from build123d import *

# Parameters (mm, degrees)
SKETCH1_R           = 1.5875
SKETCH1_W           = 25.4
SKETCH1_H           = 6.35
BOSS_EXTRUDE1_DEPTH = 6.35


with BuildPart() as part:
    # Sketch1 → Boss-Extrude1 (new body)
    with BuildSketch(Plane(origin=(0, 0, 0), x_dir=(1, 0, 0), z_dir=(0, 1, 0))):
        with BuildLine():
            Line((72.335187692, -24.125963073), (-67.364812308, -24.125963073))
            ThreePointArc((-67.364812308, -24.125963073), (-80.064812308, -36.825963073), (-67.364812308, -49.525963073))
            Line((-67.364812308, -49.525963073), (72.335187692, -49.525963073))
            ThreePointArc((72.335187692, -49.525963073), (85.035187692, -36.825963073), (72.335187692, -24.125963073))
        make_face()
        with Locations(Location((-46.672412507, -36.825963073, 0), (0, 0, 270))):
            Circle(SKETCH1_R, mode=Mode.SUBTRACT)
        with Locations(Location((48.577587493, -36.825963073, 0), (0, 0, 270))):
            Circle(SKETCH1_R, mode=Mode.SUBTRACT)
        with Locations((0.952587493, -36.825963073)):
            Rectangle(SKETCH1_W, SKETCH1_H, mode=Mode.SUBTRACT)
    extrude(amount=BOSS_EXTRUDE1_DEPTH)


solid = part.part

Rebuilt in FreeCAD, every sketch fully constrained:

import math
import FreeCAD as App
import Part
import Sketcher
Q = App.Units.Quantity


def add_polygon(sketch, points):
    """Adds a closed chain of lines whose ends are joined by coincident constraints."""
    first, n = sketch.GeometryCount, len(points)
    for a, b in zip(points, points[1:] + points[:1]):
        sketch.addGeometry(Part.LineSegment(App.Vector(*a, 0), App.Vector(*b, 0)), False)
    for i in range(n):
        sketch.addConstraint(Sketcher.Constraint("Coincident", first + i, 2, first + (i + 1) % n, 1))

doc = App.newDocument("Part")
params = doc.addObject("Spreadsheet::Sheet", "Params")
for row, (alias, value) in enumerate([
    ("sketch1_radius", "0.5 in"),
    ("sketch1_width", "1 in"),
    ("sketch1_diameter", "0.125 in"),
    ("sketch1_width2", "5.5 in"),
    ("sketch1_height", "0.25 in"),
    ("pad1_length", "0.25 in"),
], start=1):
    params.set(f"A{row}", alias)
    params.set(f"B{row}", "=" + value)
    params.setAlias(f"B{row}", alias)

body = doc.addObject("PartDesign::Body", "Body")

# Sketch on XZ plane
sketch1 = doc.addObject("Sketcher::SketchObject", "Sketch")
body.addObject(sketch1)
sketch1.AttachmentSupport = (doc.XZ_Plane, [""])
sketch1.MapMode = "FlatFace"
sketch1.addGeometry(Part.LineSegment(App.Vector(72.3, 24.1, 0), App.Vector(-67.4, 24.1, 0)), False)  # 0
sketch1.addGeometry(Part.ArcOfCircle(Part.Circle(App.Vector(-67.4, 36.8, 0), App.Vector(0, 0, 1), 12.7), math.radians(90), math.radians(270)), False)  # 1
sketch1.addGeometry(Part.LineSegment(App.Vector(-67.4, 49.5, 0), App.Vector(72.3, 49.5, 0)), False)  # 2
sketch1.addGeometry(Part.ArcOfCircle(Part.Circle(App.Vector(72.3, 36.8, 0), App.Vector(0, 0, 1), 12.7), math.radians(-90), math.radians(90)), False)  # 3
sketch1.addGeometry(Part.Circle(App.Vector(-46.7, 36.8, 0), App.Vector(0, 0, 1), 1.6), False)  # 4
add_polygon(sketch1, [(13.7, 40), (-11.7, 40), (-11.7, 33.7), (13.7, 33.7)])  # lines 5-8
sketch1.addGeometry(Part.Circle(App.Vector(48.6, 36.8, 0), App.Vector(0, 0, 1), 1.6), False)  # 9
sketch1.addConstraint(Sketcher.Constraint("Tangent", 0, 2, 1, 2))
sketch1.addConstraint(Sketcher.Constraint("Tangent", 1, 1, 2, 1))
sketch1.addConstraint(Sketcher.Constraint("Tangent", 2, 2, 3, 2))
sketch1.addConstraint(Sketcher.Constraint("Tangent", 3, 1, 0, 1))
sketch1.addConstraint(Sketcher.Constraint("Horizontal", 0))
sketch1.addConstraint(Sketcher.Constraint("Horizontal", 2))
sketch1.addConstraint(Sketcher.Constraint("Horizontal", 5))
sketch1.addConstraint(Sketcher.Constraint("Vertical", 6))
sketch1.addConstraint(Sketcher.Constraint("Horizontal", 7))
sketch1.addConstraint(Sketcher.Constraint("Vertical", 8))
sketch1.addConstraint(Sketcher.Constraint("Equal", 4, 9))
sketch1.addConstraint(Sketcher.Constraint("Horizontal", 3, 3, 4, 3))
sketch1.addConstraint(Sketcher.Constraint("Horizontal", 4, 3, 9, 3))
sketch1.addConstraint(Sketcher.Constraint("Radius", 1, Q("0.5 in")))
sketch1.addConstraint(Sketcher.Constraint("DistanceX", 5, 2, 5, 1, Q("1 in")))
sketch1.addConstraint(Sketcher.Constraint("Diameter", 4, Q("0.125 in")))
sketch1.addConstraint(Sketcher.Constraint("DistanceX", 0, 2, 0, 1, Q("5.5 in")))
sketch1.addConstraint(Sketcher.Constraint("DistanceY", 6, 2, 6, 1, Q("0.25 in")))
sketch1.addConstraint(Sketcher.Constraint("DistanceX", 4, 3, 9, 3, Q("3.75 in")))
sketch1.addConstraint(Sketcher.Constraint("DistanceX", 4, 3, 5, 2, Q("1.375 in")))
sketch1.addConstraint(Sketcher.Constraint("DistanceY", 4, 3, 5, 2, Q("0.125 in")))
sketch1.addConstraint(Sketcher.Constraint("DistanceX", 1, 3, 4, 3, Q("20.6924 mm")))
sketch1.addConstraint(Sketcher.Constraint("DistanceX", 1, 3, -1, 1, Q("67.364812 mm")))
sketch1.addConstraint(Sketcher.Constraint("DistanceY", -1, 1, 1, 3, Q("36.825963 mm")))
sketch1.setExpression("Constraints[17]", "Params.sketch1_radius")
sketch1.setExpression("Constraints[18]", "Params.sketch1_width")
sketch1.setExpression("Constraints[19]", "Params.sketch1_diameter")
sketch1.setExpression("Constraints[20]", "Params.sketch1_width2")
sketch1.setExpression("Constraints[21]", "Params.sketch1_height")
pad1 = doc.addObject("PartDesign::Pad", "Pad")
body.addObject(pad1)
pad1.Profile = sketch1
pad1.setExpression("Length", "Params.pad1_length")
pad1.Reversed = True

doc.recompute()
